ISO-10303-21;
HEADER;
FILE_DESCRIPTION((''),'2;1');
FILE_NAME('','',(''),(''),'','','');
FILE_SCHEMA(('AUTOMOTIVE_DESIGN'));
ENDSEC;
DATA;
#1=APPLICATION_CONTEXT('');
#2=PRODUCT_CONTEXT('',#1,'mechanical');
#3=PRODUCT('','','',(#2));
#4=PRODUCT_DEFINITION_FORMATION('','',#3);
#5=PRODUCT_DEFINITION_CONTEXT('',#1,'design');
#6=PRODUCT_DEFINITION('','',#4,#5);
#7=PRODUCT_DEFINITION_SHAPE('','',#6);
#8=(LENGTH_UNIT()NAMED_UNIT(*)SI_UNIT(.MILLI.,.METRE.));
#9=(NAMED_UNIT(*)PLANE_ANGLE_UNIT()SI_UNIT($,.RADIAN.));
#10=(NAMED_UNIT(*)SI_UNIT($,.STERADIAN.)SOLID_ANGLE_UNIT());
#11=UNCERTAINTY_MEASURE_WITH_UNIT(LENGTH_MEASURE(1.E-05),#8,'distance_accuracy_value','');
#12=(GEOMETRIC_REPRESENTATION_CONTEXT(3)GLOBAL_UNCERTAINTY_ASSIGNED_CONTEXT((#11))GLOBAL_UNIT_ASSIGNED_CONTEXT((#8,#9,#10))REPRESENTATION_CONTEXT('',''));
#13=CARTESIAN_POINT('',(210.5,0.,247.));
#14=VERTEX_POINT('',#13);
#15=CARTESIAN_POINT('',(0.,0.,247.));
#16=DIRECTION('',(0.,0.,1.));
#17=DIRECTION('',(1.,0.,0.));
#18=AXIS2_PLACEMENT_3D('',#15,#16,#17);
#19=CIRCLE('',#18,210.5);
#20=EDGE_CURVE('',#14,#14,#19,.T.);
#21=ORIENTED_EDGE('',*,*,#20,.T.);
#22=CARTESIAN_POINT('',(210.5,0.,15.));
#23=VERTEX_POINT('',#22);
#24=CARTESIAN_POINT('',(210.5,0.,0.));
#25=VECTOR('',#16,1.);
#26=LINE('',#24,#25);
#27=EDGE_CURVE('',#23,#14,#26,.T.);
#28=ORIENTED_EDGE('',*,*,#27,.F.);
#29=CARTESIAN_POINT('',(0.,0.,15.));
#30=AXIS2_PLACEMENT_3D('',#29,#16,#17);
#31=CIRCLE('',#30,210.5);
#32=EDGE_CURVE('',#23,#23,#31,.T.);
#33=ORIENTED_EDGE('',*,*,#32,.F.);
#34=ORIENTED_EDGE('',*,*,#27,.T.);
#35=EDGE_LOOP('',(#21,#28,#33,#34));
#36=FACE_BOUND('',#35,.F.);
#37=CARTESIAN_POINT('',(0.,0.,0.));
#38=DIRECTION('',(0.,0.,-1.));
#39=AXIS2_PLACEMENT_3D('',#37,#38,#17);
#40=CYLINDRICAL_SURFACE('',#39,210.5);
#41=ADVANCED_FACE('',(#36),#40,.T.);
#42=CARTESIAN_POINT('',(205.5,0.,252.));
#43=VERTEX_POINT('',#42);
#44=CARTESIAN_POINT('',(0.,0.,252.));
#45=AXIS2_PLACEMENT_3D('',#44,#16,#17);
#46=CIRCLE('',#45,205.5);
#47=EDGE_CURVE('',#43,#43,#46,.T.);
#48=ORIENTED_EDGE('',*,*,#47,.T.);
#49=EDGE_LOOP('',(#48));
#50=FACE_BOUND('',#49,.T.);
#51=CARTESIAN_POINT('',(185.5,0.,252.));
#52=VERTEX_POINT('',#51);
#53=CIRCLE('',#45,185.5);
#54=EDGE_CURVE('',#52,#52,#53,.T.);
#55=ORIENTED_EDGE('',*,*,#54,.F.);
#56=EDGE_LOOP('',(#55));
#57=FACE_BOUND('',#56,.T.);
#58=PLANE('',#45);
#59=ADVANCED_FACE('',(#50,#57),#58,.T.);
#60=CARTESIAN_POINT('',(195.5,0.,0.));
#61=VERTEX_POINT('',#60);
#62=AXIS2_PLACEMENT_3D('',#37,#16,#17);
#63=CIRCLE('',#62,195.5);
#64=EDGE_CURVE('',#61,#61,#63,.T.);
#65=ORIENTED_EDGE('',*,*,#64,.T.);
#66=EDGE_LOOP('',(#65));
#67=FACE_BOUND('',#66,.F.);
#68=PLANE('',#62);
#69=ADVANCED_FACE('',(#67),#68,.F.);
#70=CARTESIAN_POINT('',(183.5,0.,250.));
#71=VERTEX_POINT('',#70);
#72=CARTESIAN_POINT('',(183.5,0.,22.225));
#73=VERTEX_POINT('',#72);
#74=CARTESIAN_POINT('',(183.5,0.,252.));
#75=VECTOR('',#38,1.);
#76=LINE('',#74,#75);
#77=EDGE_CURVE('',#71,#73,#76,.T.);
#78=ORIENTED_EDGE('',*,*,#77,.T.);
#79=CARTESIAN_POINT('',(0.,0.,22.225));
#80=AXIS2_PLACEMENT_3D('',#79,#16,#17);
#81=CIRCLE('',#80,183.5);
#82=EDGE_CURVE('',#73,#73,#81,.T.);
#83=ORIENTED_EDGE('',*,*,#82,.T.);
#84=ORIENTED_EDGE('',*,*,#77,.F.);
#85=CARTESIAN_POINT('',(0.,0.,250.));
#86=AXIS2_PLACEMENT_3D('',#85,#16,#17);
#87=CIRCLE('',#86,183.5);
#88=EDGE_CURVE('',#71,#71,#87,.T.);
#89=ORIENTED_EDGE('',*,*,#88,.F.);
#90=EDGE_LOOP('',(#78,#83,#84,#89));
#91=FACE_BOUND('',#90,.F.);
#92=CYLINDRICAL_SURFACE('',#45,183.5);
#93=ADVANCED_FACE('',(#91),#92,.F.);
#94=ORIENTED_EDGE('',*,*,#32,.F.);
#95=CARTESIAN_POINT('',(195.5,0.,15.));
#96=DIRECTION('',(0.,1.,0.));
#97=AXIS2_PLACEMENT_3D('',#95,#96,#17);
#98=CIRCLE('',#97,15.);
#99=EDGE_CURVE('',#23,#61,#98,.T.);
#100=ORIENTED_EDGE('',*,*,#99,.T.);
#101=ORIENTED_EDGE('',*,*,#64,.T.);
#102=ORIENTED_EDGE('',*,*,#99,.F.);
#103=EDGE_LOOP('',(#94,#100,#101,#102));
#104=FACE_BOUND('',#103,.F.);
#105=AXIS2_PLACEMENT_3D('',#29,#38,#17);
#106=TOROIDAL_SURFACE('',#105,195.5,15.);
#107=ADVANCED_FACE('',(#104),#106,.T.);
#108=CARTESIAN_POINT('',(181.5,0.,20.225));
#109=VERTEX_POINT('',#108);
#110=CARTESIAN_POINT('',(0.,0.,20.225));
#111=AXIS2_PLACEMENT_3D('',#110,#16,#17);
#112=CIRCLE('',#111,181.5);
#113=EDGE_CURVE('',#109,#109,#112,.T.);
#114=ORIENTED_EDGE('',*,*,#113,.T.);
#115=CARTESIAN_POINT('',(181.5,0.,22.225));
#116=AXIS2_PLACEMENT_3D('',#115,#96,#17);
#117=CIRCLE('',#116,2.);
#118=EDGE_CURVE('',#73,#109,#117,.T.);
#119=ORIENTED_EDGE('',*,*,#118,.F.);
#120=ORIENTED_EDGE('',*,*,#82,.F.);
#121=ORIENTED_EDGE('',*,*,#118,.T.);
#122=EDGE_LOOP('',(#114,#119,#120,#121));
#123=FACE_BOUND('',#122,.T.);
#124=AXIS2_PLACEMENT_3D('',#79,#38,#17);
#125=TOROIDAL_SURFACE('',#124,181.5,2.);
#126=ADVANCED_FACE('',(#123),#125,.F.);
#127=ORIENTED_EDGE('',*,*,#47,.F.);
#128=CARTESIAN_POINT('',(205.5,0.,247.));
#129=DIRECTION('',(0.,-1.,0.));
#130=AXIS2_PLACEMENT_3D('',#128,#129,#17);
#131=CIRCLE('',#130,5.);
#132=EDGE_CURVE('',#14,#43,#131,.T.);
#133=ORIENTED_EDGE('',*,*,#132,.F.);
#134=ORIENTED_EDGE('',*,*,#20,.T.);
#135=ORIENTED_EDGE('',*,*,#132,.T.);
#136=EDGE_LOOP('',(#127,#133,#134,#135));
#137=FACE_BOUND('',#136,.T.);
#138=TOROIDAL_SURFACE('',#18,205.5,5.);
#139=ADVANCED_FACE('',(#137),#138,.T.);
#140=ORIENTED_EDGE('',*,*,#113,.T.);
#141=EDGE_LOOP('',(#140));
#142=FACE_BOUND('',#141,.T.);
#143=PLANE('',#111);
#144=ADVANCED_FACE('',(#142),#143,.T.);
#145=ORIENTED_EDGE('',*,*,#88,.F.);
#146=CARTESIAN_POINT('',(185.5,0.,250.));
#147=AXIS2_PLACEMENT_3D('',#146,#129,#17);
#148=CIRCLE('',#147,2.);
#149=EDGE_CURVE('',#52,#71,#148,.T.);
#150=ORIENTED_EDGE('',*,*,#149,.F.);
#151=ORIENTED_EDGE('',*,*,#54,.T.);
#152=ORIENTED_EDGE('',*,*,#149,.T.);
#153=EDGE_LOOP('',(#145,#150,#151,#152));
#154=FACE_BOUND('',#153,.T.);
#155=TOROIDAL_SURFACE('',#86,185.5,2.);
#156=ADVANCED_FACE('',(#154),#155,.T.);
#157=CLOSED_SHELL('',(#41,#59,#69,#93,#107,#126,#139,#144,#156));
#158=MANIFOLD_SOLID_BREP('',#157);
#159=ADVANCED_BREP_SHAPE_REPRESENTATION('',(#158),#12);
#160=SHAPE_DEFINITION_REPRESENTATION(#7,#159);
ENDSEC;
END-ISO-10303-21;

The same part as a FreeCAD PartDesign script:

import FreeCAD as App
import Part
import Sketcher
from FreeCAD import Vector


def edges_at(feature, points):
    """Names of the edges that pass closest to the given points."""
    edges = feature.Shape.Edges
    near = lambda p: min(range(len(edges)), key=lambda i: edges[i].distToShape(Part.Vertex(*p))[0])
    return sorted({f"Edge{near(p) + 1}" for p in points})

doc = App.newDocument("Part")
body = doc.addObject("PartDesign::Body", "Body")

sketch1 = doc.addObject("Sketcher::SketchObject", "Sketch")
body.addObject(sketch1)
sketch1.AttachmentSupport = (doc.XY_Plane, [""])
sketch1.MapMode = "FlatFace"
sketch1.addGeometry(Part.Circle(Vector(0, 0, 0), Vector(0, 0, 1), 210.5), False)
sketch1.addConstraint(Sketcher.Constraint("Coincident", 0, 3, -1, 1))
sketch1.addConstraint(Sketcher.Constraint("Diameter", 0, 421.0))
pad1 = doc.addObject("PartDesign::Pad", "Pad")
body.addObject(pad1)
pad1.Profile = sketch1
pad1.Length = 252

sketch2 = doc.addObject("Sketcher::SketchObject", "Sketch001")
body.addObject(sketch2)
sketch2.AttachmentSupport = (doc.XY_Plane, [""])
sketch2.MapMode = "FlatFace"
sketch2.AttachmentOffset = App.Placement(Vector(0, 0, 252), App.Rotation())
sketch2.addGeometry(Part.Circle(Vector(0, 0, 0), Vector(0, 0, 1), 183.5), False)
sketch2.addConstraint(Sketcher.Constraint("Coincident", 0, 3, -1, 1))
sketch2.addConstraint(Sketcher.Constraint("Diameter", 0, 367.0))
pocket1 = doc.addObject("PartDesign::Pocket", "Pocket")
body.addObject(pocket1)
pocket1.Profile = sketch2
pocket1.Length = 231.775
doc.recompute()

fillet = doc.addObject("PartDesign::Fillet", "Fillet")
body.addObject(fillet)
fillet.Base = (pocket1, edges_at(pocket1, [(-210.5, 0, 0)]))
fillet.Radius = 15
doc.recompute()

fillet2 = doc.addObject("PartDesign::Fillet", "Fillet001")
body.addObject(fillet2)
fillet2.Base = (fillet, edges_at(fillet, [(-210.5, 0, 252)]))
fillet2.Radius = 5
doc.recompute()

fillet3 = doc.addObject("PartDesign::Fillet", "Fillet002")
body.addObject(fillet3)
fillet3.Base = (fillet2, edges_at(fillet2, [(-183.5, 0, 252), (-183.5, 0, 20.225)]))
fillet3.Radius = 2

doc.recompute()
